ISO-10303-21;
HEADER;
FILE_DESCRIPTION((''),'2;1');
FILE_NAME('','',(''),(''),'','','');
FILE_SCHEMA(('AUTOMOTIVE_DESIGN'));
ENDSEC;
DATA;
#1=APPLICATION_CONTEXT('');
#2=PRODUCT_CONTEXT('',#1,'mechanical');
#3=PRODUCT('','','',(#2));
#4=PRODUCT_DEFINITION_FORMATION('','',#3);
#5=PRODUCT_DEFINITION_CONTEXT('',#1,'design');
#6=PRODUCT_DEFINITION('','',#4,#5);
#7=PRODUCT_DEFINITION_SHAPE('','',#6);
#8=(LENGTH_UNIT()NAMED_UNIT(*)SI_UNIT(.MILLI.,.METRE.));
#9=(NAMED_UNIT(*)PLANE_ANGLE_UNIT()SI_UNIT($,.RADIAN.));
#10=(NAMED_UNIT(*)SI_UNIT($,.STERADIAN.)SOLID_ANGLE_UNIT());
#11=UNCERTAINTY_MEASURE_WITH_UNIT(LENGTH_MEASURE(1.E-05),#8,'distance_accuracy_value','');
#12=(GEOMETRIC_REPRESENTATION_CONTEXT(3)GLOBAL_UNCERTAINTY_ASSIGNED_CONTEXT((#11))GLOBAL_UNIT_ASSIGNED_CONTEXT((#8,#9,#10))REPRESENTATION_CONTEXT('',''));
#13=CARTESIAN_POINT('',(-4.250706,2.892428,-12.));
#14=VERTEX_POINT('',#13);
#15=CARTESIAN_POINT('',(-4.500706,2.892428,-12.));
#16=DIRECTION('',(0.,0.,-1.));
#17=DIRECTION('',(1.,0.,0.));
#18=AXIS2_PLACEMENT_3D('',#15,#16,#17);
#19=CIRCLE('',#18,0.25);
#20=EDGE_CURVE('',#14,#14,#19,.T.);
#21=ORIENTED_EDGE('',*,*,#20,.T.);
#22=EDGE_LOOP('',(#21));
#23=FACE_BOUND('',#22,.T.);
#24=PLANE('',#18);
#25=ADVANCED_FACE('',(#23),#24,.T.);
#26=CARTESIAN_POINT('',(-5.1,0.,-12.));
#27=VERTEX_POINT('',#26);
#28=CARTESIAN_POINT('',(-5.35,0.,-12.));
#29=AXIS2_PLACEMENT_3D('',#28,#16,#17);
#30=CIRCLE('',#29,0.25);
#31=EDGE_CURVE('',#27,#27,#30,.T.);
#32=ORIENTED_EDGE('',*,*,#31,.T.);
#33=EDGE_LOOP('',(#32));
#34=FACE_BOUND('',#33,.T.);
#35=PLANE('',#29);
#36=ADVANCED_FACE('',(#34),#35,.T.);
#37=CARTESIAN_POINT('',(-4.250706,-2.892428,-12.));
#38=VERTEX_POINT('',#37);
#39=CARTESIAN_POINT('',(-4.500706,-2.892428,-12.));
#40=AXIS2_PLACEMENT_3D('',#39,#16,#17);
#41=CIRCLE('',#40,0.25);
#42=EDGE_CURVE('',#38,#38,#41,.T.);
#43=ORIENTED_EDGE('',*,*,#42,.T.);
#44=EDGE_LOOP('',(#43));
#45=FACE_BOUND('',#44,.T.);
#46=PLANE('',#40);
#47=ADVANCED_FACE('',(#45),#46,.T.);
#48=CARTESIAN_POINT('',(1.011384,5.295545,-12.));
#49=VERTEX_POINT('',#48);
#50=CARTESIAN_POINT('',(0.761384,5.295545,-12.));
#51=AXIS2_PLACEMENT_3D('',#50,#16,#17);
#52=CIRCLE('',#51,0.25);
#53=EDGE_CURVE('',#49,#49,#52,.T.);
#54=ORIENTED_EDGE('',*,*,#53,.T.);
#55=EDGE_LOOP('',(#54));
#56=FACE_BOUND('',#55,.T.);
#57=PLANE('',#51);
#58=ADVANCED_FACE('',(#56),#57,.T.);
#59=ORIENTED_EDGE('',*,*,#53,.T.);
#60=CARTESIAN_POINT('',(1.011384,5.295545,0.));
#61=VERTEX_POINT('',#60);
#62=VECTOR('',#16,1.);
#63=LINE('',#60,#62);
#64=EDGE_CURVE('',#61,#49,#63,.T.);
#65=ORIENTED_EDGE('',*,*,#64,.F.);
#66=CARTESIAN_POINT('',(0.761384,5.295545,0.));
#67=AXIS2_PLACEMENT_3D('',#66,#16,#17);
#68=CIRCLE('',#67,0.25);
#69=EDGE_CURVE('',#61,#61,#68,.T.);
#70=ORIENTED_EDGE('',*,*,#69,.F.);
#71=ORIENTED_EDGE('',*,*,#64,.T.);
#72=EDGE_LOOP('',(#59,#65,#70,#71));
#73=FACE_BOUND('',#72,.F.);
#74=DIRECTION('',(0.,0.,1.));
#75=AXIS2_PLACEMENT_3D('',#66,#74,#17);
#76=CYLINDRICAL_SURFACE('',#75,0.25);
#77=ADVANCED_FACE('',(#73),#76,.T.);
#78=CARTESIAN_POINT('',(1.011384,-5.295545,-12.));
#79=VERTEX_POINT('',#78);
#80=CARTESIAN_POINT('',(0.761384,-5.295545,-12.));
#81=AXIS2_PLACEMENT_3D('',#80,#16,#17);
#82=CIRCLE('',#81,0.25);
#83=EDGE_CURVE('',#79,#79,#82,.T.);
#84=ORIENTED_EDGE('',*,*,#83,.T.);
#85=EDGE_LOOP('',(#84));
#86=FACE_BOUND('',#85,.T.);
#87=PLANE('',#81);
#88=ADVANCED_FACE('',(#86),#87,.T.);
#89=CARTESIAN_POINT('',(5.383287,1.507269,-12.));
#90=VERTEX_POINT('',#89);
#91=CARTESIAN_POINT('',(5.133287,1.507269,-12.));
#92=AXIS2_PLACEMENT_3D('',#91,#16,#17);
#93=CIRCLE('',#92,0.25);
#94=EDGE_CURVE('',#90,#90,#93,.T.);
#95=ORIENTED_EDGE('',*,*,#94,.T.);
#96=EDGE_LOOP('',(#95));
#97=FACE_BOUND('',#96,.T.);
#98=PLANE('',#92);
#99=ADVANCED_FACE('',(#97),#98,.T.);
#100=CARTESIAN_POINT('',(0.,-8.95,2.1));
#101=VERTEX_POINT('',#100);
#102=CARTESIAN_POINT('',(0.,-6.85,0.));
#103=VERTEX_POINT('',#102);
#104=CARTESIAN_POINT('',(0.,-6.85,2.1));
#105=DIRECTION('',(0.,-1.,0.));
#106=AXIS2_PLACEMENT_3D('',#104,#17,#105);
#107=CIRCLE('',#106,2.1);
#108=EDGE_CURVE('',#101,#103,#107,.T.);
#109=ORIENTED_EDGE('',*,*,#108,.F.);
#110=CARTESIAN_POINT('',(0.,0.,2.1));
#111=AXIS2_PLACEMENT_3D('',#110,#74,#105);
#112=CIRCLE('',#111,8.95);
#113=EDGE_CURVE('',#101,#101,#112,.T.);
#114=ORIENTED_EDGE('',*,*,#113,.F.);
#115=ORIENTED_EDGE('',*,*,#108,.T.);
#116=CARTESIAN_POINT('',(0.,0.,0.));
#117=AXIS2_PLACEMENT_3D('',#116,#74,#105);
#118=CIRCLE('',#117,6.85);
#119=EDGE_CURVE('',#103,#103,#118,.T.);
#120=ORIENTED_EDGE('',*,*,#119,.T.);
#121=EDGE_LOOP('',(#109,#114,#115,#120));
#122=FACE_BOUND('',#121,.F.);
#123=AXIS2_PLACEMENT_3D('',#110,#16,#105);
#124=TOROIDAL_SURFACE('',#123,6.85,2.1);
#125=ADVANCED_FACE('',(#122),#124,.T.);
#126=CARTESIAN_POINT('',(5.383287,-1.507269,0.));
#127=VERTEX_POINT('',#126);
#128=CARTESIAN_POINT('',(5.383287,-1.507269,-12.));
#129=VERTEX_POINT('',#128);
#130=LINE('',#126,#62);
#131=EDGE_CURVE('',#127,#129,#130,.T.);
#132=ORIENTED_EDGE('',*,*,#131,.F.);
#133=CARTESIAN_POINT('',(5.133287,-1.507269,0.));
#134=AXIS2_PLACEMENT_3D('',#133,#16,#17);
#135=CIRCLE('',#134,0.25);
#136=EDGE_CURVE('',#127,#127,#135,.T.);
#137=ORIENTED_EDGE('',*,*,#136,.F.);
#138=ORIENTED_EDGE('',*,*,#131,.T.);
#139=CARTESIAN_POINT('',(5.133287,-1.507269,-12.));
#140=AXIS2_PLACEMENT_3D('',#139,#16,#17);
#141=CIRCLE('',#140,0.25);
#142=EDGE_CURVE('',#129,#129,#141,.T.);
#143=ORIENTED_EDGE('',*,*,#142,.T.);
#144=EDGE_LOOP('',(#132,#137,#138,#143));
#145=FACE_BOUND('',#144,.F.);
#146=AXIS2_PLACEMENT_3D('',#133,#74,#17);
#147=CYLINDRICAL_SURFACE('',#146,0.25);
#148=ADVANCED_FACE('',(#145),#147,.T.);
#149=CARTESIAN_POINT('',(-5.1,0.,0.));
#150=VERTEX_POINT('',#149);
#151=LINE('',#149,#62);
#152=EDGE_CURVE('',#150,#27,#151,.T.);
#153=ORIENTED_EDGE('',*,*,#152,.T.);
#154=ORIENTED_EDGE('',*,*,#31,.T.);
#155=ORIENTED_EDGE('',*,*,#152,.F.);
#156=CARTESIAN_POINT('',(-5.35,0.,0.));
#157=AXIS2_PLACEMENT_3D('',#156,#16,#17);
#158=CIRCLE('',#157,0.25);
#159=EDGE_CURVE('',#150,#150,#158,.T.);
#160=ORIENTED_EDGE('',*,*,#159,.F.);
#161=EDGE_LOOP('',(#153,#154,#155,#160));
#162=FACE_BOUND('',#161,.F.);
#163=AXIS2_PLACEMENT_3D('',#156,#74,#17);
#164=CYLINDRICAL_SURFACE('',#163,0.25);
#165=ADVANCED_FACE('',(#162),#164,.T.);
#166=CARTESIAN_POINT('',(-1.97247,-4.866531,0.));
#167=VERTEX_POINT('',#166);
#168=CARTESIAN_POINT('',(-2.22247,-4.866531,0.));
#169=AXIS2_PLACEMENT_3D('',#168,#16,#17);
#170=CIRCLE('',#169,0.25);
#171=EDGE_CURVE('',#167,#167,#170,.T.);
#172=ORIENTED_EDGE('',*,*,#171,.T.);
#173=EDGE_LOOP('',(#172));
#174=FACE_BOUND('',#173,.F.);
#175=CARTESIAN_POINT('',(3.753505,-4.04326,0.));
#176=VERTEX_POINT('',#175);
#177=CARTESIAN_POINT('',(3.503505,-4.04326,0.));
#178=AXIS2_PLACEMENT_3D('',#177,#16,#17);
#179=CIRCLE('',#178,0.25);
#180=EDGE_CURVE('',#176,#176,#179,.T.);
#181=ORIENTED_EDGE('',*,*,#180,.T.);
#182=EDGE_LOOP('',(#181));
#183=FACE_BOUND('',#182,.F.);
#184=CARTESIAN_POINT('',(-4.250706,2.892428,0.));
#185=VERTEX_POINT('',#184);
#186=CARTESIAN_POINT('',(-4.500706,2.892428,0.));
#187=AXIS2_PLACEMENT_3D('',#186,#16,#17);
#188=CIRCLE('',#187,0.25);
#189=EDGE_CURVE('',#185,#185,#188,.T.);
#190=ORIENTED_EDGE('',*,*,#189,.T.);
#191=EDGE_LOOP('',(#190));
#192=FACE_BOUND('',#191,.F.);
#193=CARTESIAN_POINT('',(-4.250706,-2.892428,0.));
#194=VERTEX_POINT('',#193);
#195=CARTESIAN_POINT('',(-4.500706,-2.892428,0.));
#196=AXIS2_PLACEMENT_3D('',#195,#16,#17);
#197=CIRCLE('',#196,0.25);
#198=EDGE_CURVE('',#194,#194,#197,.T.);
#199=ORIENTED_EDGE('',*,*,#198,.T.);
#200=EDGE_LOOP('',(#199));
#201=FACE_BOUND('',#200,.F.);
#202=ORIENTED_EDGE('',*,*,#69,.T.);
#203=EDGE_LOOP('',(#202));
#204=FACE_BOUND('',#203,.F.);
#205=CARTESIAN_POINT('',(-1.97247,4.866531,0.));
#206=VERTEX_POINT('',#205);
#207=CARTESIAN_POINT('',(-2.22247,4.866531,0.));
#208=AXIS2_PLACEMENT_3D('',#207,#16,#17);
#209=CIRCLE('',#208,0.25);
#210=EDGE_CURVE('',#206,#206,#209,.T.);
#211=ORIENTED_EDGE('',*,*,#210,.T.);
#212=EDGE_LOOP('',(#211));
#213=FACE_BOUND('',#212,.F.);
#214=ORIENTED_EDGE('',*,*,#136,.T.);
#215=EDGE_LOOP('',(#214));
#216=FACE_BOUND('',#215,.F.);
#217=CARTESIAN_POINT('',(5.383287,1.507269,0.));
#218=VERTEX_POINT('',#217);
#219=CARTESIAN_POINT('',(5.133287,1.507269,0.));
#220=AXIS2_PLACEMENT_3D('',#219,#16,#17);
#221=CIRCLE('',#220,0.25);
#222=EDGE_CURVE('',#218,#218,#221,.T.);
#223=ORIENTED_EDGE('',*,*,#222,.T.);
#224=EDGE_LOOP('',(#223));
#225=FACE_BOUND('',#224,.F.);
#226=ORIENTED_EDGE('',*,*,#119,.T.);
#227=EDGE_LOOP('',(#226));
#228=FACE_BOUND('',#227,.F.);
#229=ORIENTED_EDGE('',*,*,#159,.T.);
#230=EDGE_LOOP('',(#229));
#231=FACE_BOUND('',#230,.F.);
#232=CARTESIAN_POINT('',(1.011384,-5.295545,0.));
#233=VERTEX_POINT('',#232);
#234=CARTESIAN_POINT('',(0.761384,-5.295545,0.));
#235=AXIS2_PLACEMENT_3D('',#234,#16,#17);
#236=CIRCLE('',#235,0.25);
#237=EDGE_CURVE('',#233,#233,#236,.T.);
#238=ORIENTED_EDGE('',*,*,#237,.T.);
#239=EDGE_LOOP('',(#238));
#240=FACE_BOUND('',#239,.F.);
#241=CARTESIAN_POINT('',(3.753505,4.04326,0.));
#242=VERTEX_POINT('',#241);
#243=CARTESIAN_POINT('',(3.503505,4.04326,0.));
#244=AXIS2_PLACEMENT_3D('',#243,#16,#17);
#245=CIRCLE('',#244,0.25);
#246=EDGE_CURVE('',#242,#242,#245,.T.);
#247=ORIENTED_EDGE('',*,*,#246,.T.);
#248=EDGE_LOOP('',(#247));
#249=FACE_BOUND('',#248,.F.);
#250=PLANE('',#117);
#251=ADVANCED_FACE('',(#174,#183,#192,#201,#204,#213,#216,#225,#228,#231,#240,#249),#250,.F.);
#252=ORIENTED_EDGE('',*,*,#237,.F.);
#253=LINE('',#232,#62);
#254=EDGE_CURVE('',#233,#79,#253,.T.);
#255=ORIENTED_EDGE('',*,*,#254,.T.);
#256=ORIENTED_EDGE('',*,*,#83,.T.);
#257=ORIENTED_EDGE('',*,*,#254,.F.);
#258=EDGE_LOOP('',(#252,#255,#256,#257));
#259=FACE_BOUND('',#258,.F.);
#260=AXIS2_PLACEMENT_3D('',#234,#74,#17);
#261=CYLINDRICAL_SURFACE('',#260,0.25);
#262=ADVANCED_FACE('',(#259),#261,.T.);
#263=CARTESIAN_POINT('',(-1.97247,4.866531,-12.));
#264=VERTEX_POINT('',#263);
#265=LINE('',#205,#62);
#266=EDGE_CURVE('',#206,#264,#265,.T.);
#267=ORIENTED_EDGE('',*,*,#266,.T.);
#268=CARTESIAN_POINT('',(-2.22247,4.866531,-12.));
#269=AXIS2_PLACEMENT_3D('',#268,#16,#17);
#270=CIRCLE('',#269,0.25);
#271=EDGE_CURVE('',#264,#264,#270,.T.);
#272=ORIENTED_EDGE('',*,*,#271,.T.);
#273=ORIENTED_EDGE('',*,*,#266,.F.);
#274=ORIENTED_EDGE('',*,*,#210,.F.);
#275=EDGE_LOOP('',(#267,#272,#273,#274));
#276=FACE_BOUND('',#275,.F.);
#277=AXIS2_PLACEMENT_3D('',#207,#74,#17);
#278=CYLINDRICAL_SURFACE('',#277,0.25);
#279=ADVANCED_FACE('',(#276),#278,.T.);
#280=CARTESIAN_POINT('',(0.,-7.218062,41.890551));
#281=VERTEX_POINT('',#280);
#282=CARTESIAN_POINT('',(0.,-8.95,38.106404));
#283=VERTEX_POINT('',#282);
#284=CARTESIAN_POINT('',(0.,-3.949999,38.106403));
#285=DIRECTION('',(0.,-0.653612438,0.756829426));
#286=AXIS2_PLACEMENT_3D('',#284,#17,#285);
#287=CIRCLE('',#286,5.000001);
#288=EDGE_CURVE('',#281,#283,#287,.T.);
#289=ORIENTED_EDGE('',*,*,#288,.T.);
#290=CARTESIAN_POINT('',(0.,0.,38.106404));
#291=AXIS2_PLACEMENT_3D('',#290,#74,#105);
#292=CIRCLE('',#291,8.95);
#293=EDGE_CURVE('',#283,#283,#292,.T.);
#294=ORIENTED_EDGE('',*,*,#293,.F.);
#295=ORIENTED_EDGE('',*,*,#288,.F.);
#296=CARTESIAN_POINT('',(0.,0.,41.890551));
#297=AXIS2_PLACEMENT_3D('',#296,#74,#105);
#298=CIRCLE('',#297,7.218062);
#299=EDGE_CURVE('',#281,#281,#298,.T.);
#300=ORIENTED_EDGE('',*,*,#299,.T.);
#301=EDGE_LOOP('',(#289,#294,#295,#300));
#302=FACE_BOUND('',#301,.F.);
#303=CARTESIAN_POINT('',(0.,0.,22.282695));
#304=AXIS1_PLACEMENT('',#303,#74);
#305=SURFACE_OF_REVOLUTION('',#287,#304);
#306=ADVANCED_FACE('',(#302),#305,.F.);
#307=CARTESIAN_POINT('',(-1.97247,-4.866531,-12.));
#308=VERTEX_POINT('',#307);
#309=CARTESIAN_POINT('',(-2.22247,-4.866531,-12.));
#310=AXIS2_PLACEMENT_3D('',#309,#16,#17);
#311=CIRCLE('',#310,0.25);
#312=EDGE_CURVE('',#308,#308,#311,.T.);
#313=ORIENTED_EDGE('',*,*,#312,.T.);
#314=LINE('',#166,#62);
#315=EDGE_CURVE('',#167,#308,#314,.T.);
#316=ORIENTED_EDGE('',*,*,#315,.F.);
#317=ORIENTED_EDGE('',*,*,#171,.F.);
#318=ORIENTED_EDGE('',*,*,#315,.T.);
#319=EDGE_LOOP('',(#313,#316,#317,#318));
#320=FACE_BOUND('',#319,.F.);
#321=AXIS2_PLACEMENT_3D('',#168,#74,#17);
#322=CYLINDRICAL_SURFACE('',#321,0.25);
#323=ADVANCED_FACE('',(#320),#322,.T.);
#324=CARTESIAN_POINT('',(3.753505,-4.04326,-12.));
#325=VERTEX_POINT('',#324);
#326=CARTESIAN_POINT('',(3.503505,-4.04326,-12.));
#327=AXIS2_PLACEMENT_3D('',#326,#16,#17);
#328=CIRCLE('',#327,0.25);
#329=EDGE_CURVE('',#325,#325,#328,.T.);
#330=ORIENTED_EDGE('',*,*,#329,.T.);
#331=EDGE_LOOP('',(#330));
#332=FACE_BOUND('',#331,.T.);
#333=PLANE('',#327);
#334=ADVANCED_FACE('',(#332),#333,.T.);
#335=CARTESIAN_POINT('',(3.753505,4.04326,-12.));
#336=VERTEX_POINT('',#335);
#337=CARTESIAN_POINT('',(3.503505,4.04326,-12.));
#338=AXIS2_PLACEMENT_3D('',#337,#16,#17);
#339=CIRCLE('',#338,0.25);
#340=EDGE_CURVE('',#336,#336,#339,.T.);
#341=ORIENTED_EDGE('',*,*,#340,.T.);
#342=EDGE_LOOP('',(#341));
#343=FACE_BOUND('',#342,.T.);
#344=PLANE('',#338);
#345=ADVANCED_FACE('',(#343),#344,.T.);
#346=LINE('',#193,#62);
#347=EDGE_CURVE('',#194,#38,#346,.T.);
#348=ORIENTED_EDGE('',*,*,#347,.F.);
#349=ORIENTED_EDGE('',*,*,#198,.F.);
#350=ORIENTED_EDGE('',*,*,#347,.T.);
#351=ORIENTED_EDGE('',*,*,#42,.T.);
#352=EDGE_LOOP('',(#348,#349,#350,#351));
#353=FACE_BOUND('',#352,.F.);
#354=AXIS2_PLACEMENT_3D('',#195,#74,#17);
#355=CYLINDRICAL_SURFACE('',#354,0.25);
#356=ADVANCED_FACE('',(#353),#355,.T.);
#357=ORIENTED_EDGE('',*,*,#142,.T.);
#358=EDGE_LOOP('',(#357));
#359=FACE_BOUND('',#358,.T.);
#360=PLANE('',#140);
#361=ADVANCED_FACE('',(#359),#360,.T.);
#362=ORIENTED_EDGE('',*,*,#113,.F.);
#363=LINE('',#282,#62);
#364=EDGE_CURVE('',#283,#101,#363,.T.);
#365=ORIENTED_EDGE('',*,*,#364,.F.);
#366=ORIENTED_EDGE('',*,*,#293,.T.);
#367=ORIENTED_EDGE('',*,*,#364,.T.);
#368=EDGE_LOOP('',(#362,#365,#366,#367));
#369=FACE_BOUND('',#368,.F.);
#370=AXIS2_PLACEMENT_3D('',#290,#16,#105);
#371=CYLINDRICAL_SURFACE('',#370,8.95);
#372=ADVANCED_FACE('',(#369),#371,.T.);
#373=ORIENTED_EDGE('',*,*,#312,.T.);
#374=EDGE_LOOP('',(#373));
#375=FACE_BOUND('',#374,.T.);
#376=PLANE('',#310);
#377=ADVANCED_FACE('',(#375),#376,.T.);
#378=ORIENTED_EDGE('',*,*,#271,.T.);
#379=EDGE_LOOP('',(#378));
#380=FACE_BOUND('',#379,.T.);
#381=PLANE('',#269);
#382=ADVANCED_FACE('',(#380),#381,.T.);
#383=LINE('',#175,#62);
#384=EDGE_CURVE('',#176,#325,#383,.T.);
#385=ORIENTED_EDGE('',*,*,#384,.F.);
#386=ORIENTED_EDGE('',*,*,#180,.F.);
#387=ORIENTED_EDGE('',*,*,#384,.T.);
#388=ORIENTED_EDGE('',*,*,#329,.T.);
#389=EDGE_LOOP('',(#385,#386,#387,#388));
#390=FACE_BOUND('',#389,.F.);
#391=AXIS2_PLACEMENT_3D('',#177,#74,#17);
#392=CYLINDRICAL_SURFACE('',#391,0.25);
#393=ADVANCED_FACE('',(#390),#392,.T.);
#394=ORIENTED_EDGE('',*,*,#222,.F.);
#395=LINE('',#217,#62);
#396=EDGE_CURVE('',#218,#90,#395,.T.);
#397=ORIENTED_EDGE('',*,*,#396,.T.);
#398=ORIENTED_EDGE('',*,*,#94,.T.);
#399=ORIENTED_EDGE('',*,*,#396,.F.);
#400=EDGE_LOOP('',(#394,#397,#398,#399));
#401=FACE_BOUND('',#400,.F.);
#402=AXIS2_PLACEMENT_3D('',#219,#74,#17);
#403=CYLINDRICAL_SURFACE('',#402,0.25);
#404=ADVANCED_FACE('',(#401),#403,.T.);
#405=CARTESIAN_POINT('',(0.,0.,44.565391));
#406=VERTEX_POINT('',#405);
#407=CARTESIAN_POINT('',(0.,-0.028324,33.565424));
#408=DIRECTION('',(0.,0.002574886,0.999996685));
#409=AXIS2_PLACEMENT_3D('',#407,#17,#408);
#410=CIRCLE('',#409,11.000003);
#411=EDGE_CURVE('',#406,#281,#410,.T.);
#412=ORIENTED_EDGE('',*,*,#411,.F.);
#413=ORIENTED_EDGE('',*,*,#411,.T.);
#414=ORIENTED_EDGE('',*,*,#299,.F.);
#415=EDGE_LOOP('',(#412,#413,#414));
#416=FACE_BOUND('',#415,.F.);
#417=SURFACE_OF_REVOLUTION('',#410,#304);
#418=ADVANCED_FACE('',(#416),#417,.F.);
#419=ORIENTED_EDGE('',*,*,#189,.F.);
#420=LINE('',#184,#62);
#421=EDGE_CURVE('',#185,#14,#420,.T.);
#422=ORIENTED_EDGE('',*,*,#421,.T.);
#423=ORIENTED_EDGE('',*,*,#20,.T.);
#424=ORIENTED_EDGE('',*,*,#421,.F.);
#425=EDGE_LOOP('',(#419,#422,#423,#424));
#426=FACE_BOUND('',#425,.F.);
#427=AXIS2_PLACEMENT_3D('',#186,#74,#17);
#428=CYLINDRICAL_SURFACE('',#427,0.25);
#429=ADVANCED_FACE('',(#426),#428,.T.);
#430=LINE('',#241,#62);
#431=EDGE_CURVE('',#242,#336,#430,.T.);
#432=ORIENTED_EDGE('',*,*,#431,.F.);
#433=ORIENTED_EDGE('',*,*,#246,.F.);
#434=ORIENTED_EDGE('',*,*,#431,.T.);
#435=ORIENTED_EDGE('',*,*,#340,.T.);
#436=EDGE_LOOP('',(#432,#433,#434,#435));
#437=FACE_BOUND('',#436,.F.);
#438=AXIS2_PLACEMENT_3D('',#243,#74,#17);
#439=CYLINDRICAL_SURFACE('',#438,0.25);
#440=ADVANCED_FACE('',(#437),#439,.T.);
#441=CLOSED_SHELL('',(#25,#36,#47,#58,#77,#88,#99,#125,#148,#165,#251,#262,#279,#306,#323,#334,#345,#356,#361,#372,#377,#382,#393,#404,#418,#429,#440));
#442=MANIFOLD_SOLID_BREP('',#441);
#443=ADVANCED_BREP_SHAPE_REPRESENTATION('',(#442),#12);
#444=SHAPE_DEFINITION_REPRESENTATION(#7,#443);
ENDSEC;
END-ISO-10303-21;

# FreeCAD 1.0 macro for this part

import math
import FreeCAD as App
import Part
import Sketcher


def edges_at(feature, points):
    """Names of the edges that pass closest to the given points."""
    edges = feature.Shape.Edges
    near = lambda p: min(range(len(edges)), key=lambda i: edges[i].distToShape(Part.Vertex(*p))[0])
    return sorted({f"Edge{near(p) + 1}" for p in points})

doc = App.newDocument("Part")
body = doc.addObject("PartDesign::Body", "Body")

sketch1 = doc.addObject("Sketcher::SketchObject", "Sketch")
body.addObject(sketch1)
sketch1.AttachmentSupport = (doc.YZ_Plane, [""])
sketch1.MapMode = "FlatFace"
sketch1.addGeometry(Part.LineSegment(App.Vector(-8.9, 38.1, 0), App.Vector(-8.9, 0, 0)), False)
sketch1.addGeometry(Part.LineSegment(App.Vector(-8.9, 0, 0), App.Vector(0, 0, 0)), False)
sketch1.addGeometry(Part.LineSegment(App.Vector(0, 0, 0), App.Vector(0, 44.6, 0)), False)
sketch1.addGeometry(Part.ArcOfCircle(Part.Circle(App.Vector(0, 33.6, 0), App.Vector(0, 0, 1), 11), math.radians(90), math.radians(131)), False)
sketch1.addGeometry(Part.ArcOfCircle(Part.Circle(App.Vector(-3.9, 38.1, 0), App.Vector(0, 0, 1), 5), math.radians(131), math.radians(180)), False)
sketch1.addConstraint(Sketcher.Constraint("Coincident", 0, 2, 1, 1))
sketch1.addConstraint(Sketcher.Constraint("Coincident", 1, 2, 2, 1))
sketch1.addConstraint(Sketcher.Constraint("Coincident", 2, 2, 3, 1))
sketch1.addConstraint(Sketcher.Constraint("Tangent", 3, 2, 4, 1))
sketch1.addConstraint(Sketcher.Constraint("Tangent", 4, 2, 0, 1))
sketch1.addConstraint(Sketcher.Constraint("Vertical", 0))
sketch1.addConstraint(Sketcher.Constraint("Horizontal", 1))
sketch1.addConstraint(Sketcher.Constraint("Vertical", 2))
sketch1.addConstraint(Sketcher.Constraint("Coincident", 1, 2, -1, 1))
sketch1.addConstraint(Sketcher.Constraint("Radius", 4, 5.000001))
sketch1.addConstraint(Sketcher.Constraint("DistanceX", 1, 1, 1, 2, 8.95))
sketch1.addConstraint(Sketcher.Constraint("Radius", 3, 11.000003))
sketch1.addConstraint(Sketcher.Constraint("DistanceY", 2, 1, 2, 2, 44.565391))
sketch1.addConstraint(Sketcher.Constraint("DistanceY", 0, 2, 0, 1, 38.106404))
revolution = doc.addObject("PartDesign::Revolution", "Revolution")
body.addObject(revolution)
revolution.Profile = sketch1
revolution.ReferenceAxis = (sketch1, ["V_Axis"])
revolution.Angle = 360
doc.recompute()

fillet = doc.addObject("PartDesign::Fillet", "Fillet")
body.addObject(fillet)
fillet.Base = (revolution, edges_at(revolution, [(0, 8.95, 0)]))
fillet.Radius = 2.1

sketch2 = doc.addObject("Sketcher::SketchObject", "Sketch001")
body.addObject(sketch2)
sketch2.AttachmentSupport = (doc.XY_Plane, [""])
sketch2.MapMode = "FlatFace"
sketch2.addGeometry(Part.Circle(App.Vector(-5.35, 0, 0), App.Vector(0, 0, 1), 0.25), False)
sketch2.addGeometry(Part.Circle(App.Vector(-4.5, 2.89, 0), App.Vector(0, 0, 1), 0.25), False)
sketch2.addGeometry(Part.Circle(App.Vector(-2.22, 4.87, 0), App.Vector(0, 0, 1), 0.25), False)
sketch2.addGeometry(Part.Circle(App.Vector(0.76, 5.3, 0), App.Vector(0, 0, 1), 0.25), False)
sketch2.addGeometry(Part.Circle(App.Vector(3.5, 4.04, 0), App.Vector(0, 0, 1), 0.25), False)
sketch2.addGeometry(Part.Circle(App.Vector(5.13, 1.51, 0), App.Vector(0, 0, 1), 0.25), False)
sketch2.addGeometry(Part.Circle(App.Vector(5.13, -1.51, 0), App.Vector(0, 0, 1), 0.25), False)
sketch2.addGeometry(Part.Circle(App.Vector(3.5, -4.04, 0), App.Vector(0, 0, 1), 0.25), False)
sketch2.addGeometry(Part.Circle(App.Vector(0.76, -5.3, 0), App.Vector(0, 0, 1), 0.25), False)
sketch2.addGeometry(Part.Circle(App.Vector(-2.22, -4.87, 0), App.Vector(0, 0, 1), 0.25), False)
sketch2.addGeometry(Part.Circle(App.Vector(-4.5, -2.89, 0), App.Vector(0, 0, 1), 0.25), False)
sketch2.addConstraint(Sketcher.Constraint("Equal", 0, 1))
sketch2.addConstraint(Sketcher.Constraint("Equal", 1, 2))
sketch2.addConstraint(Sketcher.Constraint("Equal", 2, 3))
sketch2.addConstraint(Sketcher.Constraint("Equal", 3, 4))
sketch2.addConstraint(Sketcher.Constraint("Equal", 4, 5))
sketch2.addConstraint(Sketcher.Constraint("Equal", 5, 6))
sketch2.addConstraint(Sketcher.Constraint("Equal", 6, 7))
sketch2.addConstraint(Sketcher.Constraint("Equal", 7, 8))
sketch2.addConstraint(Sketcher.Constraint("Equal", 8, 9))
sketch2.addConstraint(Sketcher.Constraint("Equal", 9, 10))
sketch2.addConstraint(Sketcher.Constraint("Symmetric", 5, 3, 6, 3, -1))
sketch2.addConstraint(Sketcher.Constraint("Symmetric", 4, 3, 7, 3, -1))
sketch2.addConstraint(Sketcher.Constraint("Symmetric", 3, 3, 8, 3, -1))
sketch2.addConstraint(Sketcher.Constraint("Symmetric", 2, 3, 9, 3, -1))
sketch2.addConstraint(Sketcher.Constraint("Symmetric", 1, 3, 10, 3, -1))
sketch2.addConstraint(Sketcher.Constraint("PointOnObject", 0, 3, -1))
sketch2.addConstraint(Sketcher.Constraint("Diameter", 0, 0.5))
sketch2.addConstraint(Sketcher.Constraint("DistanceX", 0, 3, -1, 1, 5.35))
sketch2.addConstraint(Sketcher.Constraint("DistanceY", 6, 3, 2, 3, 6.3738))
sketch2.addConstraint(Sketcher.Constraint("DistanceY", -1, 1, 1, 3, 2.892428))
sketch2.addConstraint(Sketcher.Constraint("DistanceX", 2, 3, -1, 1, 2.22247))
sketch2.addConstraint(Sketcher.Constraint("DistanceY", -1, 1, 2, 3, 4.866531))
sketch2.addConstraint(Sketcher.Constraint("DistanceY", -1, 1, 4, 3, 4.04326))
sketch2.addConstraint(Sketcher.Constraint("DistanceX", 1, 3, 3, 3, 5.26209))
sketch2.addConstraint(Sketcher.Constraint("DistanceX", 3, 3, 4, 3, 2.742121))
sketch2.addConstraint(Sketcher.Constraint("DistanceX", 1, 3, -1, 1, 4.500706))
sketch2.addConstraint(Sketcher.Constraint("DistanceY", -1, 1, 3, 3, 5.295545))
sketch2.addConstraint(Sketcher.Constraint("DistanceX", -1, 1, 5, 3, 5.133287))
pad1 = doc.addObject("PartDesign::Pad", "Pad")
body.addObject(pad1)
pad1.Profile = sketch2
pad1.Length = 12
pad1.Reversed = True

doc.recompute()
